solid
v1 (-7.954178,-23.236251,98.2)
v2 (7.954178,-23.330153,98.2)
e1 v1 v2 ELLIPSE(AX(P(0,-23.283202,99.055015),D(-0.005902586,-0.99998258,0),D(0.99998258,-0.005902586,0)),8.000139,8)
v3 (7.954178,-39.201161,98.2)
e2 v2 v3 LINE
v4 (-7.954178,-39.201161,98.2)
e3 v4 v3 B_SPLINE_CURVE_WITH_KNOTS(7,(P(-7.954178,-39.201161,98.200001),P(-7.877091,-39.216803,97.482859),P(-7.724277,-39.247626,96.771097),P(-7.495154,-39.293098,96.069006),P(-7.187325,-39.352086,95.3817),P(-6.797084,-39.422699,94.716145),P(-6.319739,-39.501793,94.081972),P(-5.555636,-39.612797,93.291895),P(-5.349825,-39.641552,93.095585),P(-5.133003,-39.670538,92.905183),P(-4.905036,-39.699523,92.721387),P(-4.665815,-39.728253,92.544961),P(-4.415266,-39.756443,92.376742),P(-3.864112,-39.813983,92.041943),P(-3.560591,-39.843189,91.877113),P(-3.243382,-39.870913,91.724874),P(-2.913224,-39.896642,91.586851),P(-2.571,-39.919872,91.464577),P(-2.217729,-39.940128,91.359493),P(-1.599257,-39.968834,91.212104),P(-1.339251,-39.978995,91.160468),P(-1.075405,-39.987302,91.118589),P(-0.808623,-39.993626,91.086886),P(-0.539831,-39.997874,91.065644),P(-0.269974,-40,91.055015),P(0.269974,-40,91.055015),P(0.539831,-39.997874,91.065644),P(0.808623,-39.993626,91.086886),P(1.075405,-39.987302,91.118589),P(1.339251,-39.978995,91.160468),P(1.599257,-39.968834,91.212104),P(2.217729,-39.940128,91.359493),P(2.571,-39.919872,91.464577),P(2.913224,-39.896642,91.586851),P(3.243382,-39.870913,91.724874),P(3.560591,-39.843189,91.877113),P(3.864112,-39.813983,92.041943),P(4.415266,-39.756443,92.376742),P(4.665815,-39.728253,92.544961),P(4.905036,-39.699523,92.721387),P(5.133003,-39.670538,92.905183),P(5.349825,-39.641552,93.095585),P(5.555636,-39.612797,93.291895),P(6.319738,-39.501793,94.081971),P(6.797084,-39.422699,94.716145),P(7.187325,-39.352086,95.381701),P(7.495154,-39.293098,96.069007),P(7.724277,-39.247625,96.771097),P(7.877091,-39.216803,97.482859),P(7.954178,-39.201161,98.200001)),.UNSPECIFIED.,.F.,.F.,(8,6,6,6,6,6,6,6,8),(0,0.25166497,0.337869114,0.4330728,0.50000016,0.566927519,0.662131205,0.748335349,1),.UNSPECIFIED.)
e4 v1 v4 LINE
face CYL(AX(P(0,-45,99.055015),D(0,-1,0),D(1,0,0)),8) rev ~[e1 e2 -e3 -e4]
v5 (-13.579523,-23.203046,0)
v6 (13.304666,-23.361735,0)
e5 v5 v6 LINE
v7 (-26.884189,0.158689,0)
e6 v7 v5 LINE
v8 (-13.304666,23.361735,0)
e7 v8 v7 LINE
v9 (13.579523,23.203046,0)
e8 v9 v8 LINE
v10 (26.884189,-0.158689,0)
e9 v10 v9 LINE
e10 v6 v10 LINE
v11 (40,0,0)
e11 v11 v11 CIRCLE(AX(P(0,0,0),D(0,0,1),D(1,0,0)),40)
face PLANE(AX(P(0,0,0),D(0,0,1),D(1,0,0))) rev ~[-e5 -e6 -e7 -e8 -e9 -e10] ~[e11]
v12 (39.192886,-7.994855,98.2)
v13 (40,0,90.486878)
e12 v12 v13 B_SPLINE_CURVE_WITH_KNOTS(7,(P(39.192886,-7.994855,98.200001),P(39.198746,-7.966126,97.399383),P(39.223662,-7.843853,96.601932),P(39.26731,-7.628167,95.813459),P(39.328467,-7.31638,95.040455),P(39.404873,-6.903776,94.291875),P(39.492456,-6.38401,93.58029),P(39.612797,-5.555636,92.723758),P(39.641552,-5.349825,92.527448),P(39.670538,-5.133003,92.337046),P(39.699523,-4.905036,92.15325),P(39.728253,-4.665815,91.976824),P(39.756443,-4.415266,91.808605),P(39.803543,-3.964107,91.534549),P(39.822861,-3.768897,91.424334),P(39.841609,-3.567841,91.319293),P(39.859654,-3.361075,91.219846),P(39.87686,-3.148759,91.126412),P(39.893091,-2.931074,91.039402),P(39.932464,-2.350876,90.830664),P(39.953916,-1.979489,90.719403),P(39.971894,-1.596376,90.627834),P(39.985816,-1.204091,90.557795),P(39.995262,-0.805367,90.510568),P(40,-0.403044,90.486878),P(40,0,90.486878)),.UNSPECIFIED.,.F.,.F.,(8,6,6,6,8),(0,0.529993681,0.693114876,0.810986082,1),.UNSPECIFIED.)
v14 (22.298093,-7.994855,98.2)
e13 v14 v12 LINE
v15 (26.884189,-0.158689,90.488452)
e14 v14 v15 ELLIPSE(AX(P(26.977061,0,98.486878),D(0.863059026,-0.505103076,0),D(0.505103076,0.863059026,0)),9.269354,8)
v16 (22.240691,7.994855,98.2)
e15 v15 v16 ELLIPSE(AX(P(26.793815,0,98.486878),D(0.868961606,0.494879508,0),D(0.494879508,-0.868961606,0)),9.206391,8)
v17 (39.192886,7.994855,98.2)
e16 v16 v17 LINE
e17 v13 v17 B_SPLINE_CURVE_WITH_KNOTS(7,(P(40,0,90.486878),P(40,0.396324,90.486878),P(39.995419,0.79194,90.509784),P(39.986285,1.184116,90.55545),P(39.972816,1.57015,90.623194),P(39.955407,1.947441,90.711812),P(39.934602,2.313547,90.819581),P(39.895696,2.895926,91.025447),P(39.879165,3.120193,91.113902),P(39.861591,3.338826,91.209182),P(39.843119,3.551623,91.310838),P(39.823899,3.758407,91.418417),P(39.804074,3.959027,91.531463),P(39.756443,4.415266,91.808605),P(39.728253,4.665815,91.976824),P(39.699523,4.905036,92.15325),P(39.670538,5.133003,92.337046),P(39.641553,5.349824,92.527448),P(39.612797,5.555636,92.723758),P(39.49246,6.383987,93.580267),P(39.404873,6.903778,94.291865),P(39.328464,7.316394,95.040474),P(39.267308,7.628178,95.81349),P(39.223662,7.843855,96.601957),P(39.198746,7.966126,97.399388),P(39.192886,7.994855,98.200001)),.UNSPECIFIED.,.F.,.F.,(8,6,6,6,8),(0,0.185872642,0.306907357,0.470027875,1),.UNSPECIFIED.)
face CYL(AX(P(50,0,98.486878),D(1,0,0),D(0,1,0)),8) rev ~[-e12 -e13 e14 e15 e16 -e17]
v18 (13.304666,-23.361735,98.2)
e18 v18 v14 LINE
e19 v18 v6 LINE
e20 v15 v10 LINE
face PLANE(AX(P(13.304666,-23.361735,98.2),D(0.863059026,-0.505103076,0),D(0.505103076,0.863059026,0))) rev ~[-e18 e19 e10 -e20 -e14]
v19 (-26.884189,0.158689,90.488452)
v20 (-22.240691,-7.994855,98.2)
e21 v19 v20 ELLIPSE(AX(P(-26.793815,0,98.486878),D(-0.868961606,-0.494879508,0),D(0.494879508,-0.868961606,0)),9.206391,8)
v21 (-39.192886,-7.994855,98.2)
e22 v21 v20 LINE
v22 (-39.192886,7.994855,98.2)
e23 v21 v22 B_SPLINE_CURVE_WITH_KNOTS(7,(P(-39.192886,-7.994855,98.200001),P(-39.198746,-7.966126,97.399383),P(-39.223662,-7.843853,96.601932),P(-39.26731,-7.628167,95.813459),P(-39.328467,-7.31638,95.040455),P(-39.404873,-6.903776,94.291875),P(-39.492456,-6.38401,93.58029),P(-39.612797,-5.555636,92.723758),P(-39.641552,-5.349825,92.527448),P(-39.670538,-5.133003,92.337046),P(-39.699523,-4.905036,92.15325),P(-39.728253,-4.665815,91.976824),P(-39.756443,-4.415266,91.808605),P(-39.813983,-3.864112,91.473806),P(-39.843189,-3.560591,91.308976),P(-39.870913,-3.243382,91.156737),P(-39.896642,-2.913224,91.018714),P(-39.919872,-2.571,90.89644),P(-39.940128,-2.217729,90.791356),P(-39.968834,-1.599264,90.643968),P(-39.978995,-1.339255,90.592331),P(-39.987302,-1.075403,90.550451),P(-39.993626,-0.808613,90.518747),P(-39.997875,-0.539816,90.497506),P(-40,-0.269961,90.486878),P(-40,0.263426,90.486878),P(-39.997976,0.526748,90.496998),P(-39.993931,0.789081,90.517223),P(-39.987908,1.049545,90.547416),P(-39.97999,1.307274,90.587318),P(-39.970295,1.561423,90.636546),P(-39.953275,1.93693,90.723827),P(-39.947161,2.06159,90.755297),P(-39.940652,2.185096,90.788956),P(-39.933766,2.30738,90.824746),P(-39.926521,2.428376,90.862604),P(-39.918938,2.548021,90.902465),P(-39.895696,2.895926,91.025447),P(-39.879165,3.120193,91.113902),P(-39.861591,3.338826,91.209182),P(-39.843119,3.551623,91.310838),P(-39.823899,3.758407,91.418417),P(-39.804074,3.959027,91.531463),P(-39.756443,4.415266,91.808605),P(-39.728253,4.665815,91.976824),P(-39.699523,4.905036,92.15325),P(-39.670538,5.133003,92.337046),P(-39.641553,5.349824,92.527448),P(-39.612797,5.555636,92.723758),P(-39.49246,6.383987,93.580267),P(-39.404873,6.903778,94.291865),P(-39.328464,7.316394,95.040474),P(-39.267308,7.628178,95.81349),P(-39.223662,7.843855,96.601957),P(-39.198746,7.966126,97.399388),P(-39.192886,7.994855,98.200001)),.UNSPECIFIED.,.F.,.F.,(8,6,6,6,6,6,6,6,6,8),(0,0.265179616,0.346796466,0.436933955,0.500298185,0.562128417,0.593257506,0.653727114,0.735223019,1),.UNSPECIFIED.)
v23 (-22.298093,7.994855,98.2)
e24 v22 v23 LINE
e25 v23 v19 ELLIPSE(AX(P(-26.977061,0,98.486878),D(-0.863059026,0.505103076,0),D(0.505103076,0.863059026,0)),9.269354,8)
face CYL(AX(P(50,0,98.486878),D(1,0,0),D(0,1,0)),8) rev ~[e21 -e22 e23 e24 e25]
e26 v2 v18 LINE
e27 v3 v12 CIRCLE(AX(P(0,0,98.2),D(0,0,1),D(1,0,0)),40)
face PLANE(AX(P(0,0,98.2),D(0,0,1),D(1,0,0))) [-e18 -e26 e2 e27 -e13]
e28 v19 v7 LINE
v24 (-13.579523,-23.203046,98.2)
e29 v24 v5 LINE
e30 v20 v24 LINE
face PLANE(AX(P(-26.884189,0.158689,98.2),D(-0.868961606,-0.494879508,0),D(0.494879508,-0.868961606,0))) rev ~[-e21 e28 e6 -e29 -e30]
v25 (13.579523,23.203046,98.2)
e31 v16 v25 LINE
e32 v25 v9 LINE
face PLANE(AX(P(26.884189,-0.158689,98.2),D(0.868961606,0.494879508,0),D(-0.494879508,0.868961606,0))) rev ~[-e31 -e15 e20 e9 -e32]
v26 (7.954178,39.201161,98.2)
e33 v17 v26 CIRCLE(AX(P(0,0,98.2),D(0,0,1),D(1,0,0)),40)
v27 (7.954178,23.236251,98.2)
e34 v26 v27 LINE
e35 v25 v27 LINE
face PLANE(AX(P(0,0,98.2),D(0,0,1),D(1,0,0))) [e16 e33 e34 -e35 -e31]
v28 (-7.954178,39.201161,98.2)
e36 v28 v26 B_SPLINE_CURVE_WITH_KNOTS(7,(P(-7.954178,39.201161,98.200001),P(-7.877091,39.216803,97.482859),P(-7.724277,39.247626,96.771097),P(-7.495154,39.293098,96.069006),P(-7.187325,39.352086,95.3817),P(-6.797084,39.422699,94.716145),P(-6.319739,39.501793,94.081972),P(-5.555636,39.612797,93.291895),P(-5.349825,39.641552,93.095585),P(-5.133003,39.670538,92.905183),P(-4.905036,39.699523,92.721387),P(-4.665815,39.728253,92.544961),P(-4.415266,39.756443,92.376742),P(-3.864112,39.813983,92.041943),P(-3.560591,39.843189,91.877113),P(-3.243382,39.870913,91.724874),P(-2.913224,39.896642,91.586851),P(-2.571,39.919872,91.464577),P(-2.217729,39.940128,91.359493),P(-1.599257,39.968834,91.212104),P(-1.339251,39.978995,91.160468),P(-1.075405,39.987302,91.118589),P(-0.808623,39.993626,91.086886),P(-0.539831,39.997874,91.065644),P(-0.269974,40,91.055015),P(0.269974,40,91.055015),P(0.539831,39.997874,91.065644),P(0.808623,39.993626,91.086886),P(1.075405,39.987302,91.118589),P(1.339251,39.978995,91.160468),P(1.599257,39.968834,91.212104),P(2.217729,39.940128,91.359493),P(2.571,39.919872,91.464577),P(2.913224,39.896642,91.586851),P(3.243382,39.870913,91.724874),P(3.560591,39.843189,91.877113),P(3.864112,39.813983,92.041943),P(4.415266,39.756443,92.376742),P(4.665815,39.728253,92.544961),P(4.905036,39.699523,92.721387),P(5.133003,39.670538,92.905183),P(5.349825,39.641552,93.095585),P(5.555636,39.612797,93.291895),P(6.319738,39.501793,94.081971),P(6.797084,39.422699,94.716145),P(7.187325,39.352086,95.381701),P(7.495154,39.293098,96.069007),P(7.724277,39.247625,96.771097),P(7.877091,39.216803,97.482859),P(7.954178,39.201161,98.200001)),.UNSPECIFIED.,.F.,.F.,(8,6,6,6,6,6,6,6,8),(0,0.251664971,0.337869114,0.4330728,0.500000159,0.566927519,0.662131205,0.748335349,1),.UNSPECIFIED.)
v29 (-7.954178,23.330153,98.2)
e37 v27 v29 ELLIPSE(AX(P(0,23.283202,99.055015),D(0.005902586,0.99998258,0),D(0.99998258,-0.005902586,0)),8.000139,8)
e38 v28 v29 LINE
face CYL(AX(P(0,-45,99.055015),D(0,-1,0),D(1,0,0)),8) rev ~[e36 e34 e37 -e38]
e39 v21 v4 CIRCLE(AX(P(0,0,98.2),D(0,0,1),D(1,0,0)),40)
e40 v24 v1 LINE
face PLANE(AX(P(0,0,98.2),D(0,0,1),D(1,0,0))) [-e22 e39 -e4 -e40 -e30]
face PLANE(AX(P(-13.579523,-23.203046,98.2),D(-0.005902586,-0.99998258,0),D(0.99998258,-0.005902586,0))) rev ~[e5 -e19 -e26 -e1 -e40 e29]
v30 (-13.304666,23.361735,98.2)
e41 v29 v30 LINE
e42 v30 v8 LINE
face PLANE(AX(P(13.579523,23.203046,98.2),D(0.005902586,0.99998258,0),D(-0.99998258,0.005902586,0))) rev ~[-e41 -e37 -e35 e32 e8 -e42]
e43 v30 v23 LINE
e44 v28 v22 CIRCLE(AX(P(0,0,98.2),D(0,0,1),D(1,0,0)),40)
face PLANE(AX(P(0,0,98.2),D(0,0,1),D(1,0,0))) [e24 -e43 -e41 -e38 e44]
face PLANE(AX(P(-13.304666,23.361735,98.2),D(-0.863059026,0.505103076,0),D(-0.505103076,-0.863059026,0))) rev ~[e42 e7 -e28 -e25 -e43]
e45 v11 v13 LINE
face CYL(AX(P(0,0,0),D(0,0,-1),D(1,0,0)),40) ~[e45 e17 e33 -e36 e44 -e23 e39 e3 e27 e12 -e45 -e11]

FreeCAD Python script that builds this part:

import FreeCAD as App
import Part
import Sketcher
from FreeCAD import Vector

doc = App.newDocument("Part")
body = doc.addObject("PartDesign::Body", "Body")

sketch1 = body.newObject("Sketcher::SketchObject", "Sketch")
sketch1.AttachmentSupport = (doc.getObject("XY_Plane"), [""])
sketch1.MapMode = "FlatFace"
sketch1.addGeometry(Part.Circle(Vector(0, 0, 0), Vector(0, 0, 1), 40), False)
sketch1.addConstraint([
    Sketcher.Constraint("Coincident", 0, 3, -1, 1),
    Sketcher.Constraint("Diameter", 0, 80.0),
])
pad1 = body.newObject("PartDesign::Pad", "Pad")
pad1.Profile = sketch1
pad1.Length = 98.2

sketch2 = body.newObject("Sketcher::SketchObject", "Sketch001")
sketch2.AttachmentSupport = (doc.getObject("XY_Plane"), [""])
sketch2.MapMode = "FlatFace"
sketch2.AttachmentOffset = App.Placement(Vector(0, 0, 98.2), App.Rotation())
sketch2.addGeometry([
    Part.LineSegment(Vector(27, 0, 0), Vector(14, 23, 0)),
    Part.LineSegment(Vector(14, 23, 0), Vector(-13, 23, 0)),
    Part.LineSegment(Vector(-13, 23, 0), Vector(-27, 0, 0)),
    Part.LineSegment(Vector(-27, 0, 0), Vector(-14, -23, 0)),
    Part.LineSegment(Vector(-14, -23, 0), Vector(13, -23, 0)),
    Part.LineSegment(Vector(13, -23, 0), Vector(27, 0, 0)),
], False)
sketch2.addConstraint([
    Sketcher.Constraint("Coincident", 0, 2, 1, 1),
    Sketcher.Constraint("Coincident", 1, 2, 2, 1),
    Sketcher.Constraint("Coincident", 2, 2, 3, 1),
    Sketcher.Constraint("Coincident", 3, 2, 4, 1),
    Sketcher.Constraint("Coincident", 4, 2, 5, 1),
    Sketcher.Constraint("Coincident", 5, 2, 0, 1),
    Sketcher.Constraint("Symmetric", 0, 2, 3, 2, -1, 1),
    Sketcher.Constraint("Symmetric", 1, 2, 4, 2, -1, 1),
    Sketcher.Constraint("Symmetric", 2, 2, 5, 2, -1, 1),
    Sketcher.Constraint("Equal", 0, 1),
    Sketcher.Constraint("Equal", 1, 2),
    Sketcher.Constraint("DistanceX", 2, 2, -1, 1, 26.884189),
    Sketcher.Constraint("DistanceY", -1, 1, 2, 2, 0.158689),
    Sketcher.Constraint("DistanceX", 1, 2, 0, 2, 26.884189),
    Sketcher.Constraint("DistanceY", 0, 2, 1, 2, 0.158689),
])
pocket1 = body.newObject("PartDesign::Pocket", "Pocket")
pocket1.Profile = sketch2
pocket1.Length = 100

sketch3 = body.newObject("Sketcher::SketchObject", "Sketch002")
sketch3.AttachmentSupport = (doc.getObject("XZ_Plane"), [""])
sketch3.MapMode = "FlatFace"
sketch3.AttachmentOffset = App.Placement(Vector(0, 0, 45), App.Rotation())
sketch3.addGeometry(Part.Circle(Vector(0, 99, 0), Vector(0, 0, 1), 8), False)
sketch3.addConstraint([
    Sketcher.Constraint("PointOnObject", 0, 3, -2),
    Sketcher.Constraint("Diameter", 0, 16.0),
    Sketcher.Constraint("DistanceY", -1, 1, 0, 3, 99.055015),
])
pocket2 = body.newObject("PartDesign::Pocket", "Pocket001")
pocket2.Profile = sketch3
pocket2.Length = 200

sketch4 = body.newObject("Sketcher::SketchObject", "Sketch003")
sketch4.AttachmentSupport = (doc.getObject("YZ_Plane"), [""])
sketch4.MapMode = "FlatFace"
sketch4.AttachmentOffset = App.Placement(Vector(0, 0, 50), App.Rotation())
sketch4.addGeometry(Part.Circle(Vector(0, 98, 0), Vector(0, 0, 1), 8), False)
sketch4.addConstraint([
    Sketcher.Constraint("PointOnObject", 0, 3, -2),
    Sketcher.Constraint("Diameter", 0, 16.0),
    Sketcher.Constraint("DistanceY", -1, 1, 0, 3, 98.486878),
])
pocket3 = body.newObject("PartDesign::Pocket", "Pocket002")
pocket3.Profile = sketch4
pocket3.Length = 100

doc.recompute()
